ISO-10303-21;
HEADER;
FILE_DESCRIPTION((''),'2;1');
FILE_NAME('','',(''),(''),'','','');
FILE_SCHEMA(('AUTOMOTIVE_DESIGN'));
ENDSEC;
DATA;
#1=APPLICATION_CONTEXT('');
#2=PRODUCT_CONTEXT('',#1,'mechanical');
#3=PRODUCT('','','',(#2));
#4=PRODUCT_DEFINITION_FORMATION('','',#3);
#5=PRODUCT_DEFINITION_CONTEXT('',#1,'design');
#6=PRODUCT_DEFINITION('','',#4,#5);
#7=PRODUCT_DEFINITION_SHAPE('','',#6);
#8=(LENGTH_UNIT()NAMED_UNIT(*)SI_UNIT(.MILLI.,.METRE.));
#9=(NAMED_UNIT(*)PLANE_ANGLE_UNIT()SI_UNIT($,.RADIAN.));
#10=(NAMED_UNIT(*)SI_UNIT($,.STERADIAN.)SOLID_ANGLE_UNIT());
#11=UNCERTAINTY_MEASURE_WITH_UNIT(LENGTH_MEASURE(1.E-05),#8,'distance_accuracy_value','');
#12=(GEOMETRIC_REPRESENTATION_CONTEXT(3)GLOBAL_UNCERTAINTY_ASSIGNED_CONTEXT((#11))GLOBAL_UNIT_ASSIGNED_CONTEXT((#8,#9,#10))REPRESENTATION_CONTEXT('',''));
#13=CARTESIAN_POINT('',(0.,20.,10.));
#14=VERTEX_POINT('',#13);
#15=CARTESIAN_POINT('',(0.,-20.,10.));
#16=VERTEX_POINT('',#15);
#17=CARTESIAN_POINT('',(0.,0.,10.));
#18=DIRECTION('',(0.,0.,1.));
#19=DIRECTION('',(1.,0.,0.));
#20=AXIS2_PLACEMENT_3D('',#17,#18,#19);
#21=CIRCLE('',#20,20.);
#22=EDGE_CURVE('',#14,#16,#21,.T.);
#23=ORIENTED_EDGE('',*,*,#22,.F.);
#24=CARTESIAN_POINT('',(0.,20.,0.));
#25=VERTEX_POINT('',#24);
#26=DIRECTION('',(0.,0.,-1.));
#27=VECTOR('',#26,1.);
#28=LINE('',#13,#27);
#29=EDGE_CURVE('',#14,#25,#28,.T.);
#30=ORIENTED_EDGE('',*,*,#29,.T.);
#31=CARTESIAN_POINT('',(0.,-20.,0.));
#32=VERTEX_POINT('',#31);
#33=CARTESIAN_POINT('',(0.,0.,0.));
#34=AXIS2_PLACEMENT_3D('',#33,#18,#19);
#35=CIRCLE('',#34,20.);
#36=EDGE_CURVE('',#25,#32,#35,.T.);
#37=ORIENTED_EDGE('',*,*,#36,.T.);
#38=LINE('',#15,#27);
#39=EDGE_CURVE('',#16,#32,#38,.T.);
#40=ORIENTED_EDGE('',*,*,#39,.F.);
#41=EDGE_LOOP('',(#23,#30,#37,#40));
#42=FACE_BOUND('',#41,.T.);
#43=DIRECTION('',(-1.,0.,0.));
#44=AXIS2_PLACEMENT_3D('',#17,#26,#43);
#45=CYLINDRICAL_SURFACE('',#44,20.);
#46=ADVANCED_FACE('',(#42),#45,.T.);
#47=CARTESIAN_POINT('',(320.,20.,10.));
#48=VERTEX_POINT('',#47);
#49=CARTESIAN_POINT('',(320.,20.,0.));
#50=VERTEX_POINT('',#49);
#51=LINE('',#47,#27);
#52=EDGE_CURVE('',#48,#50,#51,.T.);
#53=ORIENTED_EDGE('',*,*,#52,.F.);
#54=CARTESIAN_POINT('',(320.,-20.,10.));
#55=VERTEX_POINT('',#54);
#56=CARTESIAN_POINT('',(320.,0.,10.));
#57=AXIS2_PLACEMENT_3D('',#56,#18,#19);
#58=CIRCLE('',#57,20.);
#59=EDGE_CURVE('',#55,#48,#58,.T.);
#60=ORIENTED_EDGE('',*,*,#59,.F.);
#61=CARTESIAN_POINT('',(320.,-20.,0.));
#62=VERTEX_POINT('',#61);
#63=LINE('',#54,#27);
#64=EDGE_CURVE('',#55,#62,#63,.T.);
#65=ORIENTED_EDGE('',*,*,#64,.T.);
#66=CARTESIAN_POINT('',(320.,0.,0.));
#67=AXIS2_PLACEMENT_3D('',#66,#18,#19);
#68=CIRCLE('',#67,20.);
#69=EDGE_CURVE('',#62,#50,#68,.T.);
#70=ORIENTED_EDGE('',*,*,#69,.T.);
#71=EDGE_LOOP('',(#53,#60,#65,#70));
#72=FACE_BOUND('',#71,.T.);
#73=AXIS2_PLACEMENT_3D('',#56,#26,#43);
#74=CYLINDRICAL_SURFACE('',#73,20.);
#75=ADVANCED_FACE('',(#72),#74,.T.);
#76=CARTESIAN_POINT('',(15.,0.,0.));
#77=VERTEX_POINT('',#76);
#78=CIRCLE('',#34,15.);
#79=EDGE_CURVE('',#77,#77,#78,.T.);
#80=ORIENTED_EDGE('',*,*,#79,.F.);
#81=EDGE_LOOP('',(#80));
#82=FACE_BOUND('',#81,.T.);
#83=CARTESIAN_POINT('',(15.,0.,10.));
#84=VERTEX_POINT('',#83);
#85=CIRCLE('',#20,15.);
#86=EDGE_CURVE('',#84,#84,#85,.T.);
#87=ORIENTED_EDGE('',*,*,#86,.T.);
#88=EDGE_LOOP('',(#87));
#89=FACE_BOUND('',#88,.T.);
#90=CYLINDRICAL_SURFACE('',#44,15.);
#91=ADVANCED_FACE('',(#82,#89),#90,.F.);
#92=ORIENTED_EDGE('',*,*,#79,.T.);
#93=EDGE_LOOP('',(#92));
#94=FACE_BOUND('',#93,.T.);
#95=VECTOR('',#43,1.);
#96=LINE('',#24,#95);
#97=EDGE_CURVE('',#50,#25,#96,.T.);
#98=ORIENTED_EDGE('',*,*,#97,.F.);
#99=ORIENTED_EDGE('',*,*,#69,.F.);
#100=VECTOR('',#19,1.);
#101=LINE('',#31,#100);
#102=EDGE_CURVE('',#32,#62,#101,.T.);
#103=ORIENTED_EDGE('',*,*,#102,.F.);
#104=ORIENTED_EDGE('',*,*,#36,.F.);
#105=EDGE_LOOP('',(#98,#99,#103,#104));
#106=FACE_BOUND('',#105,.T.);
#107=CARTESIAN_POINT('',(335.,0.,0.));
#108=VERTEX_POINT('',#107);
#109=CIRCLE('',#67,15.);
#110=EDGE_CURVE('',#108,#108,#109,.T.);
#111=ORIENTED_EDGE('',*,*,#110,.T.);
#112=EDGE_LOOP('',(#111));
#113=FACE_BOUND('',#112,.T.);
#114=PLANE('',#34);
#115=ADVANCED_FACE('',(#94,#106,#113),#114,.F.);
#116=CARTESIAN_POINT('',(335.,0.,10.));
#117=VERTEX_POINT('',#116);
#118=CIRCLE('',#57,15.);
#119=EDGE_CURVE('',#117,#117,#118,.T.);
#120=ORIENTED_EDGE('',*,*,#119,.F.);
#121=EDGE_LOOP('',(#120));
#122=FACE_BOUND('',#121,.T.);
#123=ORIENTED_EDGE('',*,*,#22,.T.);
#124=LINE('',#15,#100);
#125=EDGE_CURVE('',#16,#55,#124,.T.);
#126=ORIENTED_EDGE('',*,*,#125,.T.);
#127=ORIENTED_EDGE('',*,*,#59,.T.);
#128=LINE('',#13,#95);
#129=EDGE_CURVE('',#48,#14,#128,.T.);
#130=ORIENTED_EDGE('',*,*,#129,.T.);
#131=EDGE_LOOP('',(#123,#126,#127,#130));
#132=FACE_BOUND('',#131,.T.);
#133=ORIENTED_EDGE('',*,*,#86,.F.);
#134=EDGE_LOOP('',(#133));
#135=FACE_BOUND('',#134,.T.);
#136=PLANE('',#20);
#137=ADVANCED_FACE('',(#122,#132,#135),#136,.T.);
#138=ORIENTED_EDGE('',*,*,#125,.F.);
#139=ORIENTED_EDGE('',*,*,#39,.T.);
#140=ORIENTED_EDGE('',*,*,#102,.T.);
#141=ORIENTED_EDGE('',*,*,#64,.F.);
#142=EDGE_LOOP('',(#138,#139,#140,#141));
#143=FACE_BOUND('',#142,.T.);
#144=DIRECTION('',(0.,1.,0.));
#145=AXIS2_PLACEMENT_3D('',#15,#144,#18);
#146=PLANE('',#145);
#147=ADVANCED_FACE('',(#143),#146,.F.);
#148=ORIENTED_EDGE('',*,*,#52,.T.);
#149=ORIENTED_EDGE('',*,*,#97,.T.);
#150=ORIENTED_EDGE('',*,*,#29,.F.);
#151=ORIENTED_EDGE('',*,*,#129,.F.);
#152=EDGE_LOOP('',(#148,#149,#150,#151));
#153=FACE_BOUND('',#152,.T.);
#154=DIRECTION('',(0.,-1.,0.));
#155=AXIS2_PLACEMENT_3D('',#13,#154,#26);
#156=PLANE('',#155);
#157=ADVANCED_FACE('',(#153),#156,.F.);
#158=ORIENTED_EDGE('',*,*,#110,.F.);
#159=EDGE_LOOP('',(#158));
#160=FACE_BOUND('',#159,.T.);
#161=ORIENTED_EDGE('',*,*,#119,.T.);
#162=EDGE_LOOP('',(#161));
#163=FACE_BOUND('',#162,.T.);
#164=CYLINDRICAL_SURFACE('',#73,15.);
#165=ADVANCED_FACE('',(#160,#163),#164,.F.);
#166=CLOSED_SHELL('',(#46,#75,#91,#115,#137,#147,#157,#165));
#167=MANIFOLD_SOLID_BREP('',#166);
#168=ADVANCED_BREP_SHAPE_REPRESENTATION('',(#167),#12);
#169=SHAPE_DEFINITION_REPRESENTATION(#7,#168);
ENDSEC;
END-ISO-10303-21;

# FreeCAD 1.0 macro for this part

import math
import FreeCAD as App
import Part
import Sketcher
from FreeCAD import Vector

doc = App.newDocument("Part")
body = doc.addObject("PartDesign::Body", "Body")

# Sketch on XY plane
sketch1 = body.newObject("Sketcher::SketchObject", "Sketch")
sketch1.AttachmentSupport = (doc.getObject("XY_Plane"), [""])
sketch1.MapMode = "FlatFace"
sketch1.addGeometry([
    Part.LineSegment(Vector(320, 20, 0), Vector(0, 20, 0)),  # 0
    Part.ArcOfCircle(Part.Circle(Vector(0, 0, 0), Vector(0, 0, 1), 20), math.radians(90), math.radians(270)),  # 1
    Part.LineSegment(Vector(0, -20, 0), Vector(320, -20, 0)),  # 2
    Part.ArcOfCircle(Part.Circle(Vector(320, 0, 0), Vector(0, 0, 1), 20), math.radians(-90), math.radians(90)),  # 3
    Part.Circle(Vector(320, 0, 0), Vector(0, 0, 1), 15),  # 4
    Part.Circle(Vector(0, 0, 0), Vector(0, 0, 1), 15),  # 5
], False)
sketch1.addConstraint([
    Sketcher.Constraint("Tangent", 0, 2, 1, 1),
    Sketcher.Constraint("Tangent", 1, 2, 2, 1),
    Sketcher.Constraint("Tangent", 2, 2, 3, 1),
    Sketcher.Constraint("Tangent", 3, 2, 0, 1),
    Sketcher.Constraint("Horizontal", 0),
    Sketcher.Constraint("Horizontal", 2),
    Sketcher.Constraint("Coincident", 1, 3, -1, 1),
    Sketcher.Constraint("Coincident", 5, 3, -1, 1),
    Sketcher.Constraint("Coincident", 4, 3, 3, 3),
    Sketcher.Constraint("Equal", 4, 5),
    Sketcher.Constraint("Diameter", 4, 30.0),
    Sketcher.Constraint("Radius", 1, 20.0),
    Sketcher.Constraint("DistanceX", 0, 2, 0, 1, 320.0),
])
pad1 = body.newObject("PartDesign::Pad", "Pad")
pad1.Profile = sketch1
pad1.Length = 10

doc.recompute()
